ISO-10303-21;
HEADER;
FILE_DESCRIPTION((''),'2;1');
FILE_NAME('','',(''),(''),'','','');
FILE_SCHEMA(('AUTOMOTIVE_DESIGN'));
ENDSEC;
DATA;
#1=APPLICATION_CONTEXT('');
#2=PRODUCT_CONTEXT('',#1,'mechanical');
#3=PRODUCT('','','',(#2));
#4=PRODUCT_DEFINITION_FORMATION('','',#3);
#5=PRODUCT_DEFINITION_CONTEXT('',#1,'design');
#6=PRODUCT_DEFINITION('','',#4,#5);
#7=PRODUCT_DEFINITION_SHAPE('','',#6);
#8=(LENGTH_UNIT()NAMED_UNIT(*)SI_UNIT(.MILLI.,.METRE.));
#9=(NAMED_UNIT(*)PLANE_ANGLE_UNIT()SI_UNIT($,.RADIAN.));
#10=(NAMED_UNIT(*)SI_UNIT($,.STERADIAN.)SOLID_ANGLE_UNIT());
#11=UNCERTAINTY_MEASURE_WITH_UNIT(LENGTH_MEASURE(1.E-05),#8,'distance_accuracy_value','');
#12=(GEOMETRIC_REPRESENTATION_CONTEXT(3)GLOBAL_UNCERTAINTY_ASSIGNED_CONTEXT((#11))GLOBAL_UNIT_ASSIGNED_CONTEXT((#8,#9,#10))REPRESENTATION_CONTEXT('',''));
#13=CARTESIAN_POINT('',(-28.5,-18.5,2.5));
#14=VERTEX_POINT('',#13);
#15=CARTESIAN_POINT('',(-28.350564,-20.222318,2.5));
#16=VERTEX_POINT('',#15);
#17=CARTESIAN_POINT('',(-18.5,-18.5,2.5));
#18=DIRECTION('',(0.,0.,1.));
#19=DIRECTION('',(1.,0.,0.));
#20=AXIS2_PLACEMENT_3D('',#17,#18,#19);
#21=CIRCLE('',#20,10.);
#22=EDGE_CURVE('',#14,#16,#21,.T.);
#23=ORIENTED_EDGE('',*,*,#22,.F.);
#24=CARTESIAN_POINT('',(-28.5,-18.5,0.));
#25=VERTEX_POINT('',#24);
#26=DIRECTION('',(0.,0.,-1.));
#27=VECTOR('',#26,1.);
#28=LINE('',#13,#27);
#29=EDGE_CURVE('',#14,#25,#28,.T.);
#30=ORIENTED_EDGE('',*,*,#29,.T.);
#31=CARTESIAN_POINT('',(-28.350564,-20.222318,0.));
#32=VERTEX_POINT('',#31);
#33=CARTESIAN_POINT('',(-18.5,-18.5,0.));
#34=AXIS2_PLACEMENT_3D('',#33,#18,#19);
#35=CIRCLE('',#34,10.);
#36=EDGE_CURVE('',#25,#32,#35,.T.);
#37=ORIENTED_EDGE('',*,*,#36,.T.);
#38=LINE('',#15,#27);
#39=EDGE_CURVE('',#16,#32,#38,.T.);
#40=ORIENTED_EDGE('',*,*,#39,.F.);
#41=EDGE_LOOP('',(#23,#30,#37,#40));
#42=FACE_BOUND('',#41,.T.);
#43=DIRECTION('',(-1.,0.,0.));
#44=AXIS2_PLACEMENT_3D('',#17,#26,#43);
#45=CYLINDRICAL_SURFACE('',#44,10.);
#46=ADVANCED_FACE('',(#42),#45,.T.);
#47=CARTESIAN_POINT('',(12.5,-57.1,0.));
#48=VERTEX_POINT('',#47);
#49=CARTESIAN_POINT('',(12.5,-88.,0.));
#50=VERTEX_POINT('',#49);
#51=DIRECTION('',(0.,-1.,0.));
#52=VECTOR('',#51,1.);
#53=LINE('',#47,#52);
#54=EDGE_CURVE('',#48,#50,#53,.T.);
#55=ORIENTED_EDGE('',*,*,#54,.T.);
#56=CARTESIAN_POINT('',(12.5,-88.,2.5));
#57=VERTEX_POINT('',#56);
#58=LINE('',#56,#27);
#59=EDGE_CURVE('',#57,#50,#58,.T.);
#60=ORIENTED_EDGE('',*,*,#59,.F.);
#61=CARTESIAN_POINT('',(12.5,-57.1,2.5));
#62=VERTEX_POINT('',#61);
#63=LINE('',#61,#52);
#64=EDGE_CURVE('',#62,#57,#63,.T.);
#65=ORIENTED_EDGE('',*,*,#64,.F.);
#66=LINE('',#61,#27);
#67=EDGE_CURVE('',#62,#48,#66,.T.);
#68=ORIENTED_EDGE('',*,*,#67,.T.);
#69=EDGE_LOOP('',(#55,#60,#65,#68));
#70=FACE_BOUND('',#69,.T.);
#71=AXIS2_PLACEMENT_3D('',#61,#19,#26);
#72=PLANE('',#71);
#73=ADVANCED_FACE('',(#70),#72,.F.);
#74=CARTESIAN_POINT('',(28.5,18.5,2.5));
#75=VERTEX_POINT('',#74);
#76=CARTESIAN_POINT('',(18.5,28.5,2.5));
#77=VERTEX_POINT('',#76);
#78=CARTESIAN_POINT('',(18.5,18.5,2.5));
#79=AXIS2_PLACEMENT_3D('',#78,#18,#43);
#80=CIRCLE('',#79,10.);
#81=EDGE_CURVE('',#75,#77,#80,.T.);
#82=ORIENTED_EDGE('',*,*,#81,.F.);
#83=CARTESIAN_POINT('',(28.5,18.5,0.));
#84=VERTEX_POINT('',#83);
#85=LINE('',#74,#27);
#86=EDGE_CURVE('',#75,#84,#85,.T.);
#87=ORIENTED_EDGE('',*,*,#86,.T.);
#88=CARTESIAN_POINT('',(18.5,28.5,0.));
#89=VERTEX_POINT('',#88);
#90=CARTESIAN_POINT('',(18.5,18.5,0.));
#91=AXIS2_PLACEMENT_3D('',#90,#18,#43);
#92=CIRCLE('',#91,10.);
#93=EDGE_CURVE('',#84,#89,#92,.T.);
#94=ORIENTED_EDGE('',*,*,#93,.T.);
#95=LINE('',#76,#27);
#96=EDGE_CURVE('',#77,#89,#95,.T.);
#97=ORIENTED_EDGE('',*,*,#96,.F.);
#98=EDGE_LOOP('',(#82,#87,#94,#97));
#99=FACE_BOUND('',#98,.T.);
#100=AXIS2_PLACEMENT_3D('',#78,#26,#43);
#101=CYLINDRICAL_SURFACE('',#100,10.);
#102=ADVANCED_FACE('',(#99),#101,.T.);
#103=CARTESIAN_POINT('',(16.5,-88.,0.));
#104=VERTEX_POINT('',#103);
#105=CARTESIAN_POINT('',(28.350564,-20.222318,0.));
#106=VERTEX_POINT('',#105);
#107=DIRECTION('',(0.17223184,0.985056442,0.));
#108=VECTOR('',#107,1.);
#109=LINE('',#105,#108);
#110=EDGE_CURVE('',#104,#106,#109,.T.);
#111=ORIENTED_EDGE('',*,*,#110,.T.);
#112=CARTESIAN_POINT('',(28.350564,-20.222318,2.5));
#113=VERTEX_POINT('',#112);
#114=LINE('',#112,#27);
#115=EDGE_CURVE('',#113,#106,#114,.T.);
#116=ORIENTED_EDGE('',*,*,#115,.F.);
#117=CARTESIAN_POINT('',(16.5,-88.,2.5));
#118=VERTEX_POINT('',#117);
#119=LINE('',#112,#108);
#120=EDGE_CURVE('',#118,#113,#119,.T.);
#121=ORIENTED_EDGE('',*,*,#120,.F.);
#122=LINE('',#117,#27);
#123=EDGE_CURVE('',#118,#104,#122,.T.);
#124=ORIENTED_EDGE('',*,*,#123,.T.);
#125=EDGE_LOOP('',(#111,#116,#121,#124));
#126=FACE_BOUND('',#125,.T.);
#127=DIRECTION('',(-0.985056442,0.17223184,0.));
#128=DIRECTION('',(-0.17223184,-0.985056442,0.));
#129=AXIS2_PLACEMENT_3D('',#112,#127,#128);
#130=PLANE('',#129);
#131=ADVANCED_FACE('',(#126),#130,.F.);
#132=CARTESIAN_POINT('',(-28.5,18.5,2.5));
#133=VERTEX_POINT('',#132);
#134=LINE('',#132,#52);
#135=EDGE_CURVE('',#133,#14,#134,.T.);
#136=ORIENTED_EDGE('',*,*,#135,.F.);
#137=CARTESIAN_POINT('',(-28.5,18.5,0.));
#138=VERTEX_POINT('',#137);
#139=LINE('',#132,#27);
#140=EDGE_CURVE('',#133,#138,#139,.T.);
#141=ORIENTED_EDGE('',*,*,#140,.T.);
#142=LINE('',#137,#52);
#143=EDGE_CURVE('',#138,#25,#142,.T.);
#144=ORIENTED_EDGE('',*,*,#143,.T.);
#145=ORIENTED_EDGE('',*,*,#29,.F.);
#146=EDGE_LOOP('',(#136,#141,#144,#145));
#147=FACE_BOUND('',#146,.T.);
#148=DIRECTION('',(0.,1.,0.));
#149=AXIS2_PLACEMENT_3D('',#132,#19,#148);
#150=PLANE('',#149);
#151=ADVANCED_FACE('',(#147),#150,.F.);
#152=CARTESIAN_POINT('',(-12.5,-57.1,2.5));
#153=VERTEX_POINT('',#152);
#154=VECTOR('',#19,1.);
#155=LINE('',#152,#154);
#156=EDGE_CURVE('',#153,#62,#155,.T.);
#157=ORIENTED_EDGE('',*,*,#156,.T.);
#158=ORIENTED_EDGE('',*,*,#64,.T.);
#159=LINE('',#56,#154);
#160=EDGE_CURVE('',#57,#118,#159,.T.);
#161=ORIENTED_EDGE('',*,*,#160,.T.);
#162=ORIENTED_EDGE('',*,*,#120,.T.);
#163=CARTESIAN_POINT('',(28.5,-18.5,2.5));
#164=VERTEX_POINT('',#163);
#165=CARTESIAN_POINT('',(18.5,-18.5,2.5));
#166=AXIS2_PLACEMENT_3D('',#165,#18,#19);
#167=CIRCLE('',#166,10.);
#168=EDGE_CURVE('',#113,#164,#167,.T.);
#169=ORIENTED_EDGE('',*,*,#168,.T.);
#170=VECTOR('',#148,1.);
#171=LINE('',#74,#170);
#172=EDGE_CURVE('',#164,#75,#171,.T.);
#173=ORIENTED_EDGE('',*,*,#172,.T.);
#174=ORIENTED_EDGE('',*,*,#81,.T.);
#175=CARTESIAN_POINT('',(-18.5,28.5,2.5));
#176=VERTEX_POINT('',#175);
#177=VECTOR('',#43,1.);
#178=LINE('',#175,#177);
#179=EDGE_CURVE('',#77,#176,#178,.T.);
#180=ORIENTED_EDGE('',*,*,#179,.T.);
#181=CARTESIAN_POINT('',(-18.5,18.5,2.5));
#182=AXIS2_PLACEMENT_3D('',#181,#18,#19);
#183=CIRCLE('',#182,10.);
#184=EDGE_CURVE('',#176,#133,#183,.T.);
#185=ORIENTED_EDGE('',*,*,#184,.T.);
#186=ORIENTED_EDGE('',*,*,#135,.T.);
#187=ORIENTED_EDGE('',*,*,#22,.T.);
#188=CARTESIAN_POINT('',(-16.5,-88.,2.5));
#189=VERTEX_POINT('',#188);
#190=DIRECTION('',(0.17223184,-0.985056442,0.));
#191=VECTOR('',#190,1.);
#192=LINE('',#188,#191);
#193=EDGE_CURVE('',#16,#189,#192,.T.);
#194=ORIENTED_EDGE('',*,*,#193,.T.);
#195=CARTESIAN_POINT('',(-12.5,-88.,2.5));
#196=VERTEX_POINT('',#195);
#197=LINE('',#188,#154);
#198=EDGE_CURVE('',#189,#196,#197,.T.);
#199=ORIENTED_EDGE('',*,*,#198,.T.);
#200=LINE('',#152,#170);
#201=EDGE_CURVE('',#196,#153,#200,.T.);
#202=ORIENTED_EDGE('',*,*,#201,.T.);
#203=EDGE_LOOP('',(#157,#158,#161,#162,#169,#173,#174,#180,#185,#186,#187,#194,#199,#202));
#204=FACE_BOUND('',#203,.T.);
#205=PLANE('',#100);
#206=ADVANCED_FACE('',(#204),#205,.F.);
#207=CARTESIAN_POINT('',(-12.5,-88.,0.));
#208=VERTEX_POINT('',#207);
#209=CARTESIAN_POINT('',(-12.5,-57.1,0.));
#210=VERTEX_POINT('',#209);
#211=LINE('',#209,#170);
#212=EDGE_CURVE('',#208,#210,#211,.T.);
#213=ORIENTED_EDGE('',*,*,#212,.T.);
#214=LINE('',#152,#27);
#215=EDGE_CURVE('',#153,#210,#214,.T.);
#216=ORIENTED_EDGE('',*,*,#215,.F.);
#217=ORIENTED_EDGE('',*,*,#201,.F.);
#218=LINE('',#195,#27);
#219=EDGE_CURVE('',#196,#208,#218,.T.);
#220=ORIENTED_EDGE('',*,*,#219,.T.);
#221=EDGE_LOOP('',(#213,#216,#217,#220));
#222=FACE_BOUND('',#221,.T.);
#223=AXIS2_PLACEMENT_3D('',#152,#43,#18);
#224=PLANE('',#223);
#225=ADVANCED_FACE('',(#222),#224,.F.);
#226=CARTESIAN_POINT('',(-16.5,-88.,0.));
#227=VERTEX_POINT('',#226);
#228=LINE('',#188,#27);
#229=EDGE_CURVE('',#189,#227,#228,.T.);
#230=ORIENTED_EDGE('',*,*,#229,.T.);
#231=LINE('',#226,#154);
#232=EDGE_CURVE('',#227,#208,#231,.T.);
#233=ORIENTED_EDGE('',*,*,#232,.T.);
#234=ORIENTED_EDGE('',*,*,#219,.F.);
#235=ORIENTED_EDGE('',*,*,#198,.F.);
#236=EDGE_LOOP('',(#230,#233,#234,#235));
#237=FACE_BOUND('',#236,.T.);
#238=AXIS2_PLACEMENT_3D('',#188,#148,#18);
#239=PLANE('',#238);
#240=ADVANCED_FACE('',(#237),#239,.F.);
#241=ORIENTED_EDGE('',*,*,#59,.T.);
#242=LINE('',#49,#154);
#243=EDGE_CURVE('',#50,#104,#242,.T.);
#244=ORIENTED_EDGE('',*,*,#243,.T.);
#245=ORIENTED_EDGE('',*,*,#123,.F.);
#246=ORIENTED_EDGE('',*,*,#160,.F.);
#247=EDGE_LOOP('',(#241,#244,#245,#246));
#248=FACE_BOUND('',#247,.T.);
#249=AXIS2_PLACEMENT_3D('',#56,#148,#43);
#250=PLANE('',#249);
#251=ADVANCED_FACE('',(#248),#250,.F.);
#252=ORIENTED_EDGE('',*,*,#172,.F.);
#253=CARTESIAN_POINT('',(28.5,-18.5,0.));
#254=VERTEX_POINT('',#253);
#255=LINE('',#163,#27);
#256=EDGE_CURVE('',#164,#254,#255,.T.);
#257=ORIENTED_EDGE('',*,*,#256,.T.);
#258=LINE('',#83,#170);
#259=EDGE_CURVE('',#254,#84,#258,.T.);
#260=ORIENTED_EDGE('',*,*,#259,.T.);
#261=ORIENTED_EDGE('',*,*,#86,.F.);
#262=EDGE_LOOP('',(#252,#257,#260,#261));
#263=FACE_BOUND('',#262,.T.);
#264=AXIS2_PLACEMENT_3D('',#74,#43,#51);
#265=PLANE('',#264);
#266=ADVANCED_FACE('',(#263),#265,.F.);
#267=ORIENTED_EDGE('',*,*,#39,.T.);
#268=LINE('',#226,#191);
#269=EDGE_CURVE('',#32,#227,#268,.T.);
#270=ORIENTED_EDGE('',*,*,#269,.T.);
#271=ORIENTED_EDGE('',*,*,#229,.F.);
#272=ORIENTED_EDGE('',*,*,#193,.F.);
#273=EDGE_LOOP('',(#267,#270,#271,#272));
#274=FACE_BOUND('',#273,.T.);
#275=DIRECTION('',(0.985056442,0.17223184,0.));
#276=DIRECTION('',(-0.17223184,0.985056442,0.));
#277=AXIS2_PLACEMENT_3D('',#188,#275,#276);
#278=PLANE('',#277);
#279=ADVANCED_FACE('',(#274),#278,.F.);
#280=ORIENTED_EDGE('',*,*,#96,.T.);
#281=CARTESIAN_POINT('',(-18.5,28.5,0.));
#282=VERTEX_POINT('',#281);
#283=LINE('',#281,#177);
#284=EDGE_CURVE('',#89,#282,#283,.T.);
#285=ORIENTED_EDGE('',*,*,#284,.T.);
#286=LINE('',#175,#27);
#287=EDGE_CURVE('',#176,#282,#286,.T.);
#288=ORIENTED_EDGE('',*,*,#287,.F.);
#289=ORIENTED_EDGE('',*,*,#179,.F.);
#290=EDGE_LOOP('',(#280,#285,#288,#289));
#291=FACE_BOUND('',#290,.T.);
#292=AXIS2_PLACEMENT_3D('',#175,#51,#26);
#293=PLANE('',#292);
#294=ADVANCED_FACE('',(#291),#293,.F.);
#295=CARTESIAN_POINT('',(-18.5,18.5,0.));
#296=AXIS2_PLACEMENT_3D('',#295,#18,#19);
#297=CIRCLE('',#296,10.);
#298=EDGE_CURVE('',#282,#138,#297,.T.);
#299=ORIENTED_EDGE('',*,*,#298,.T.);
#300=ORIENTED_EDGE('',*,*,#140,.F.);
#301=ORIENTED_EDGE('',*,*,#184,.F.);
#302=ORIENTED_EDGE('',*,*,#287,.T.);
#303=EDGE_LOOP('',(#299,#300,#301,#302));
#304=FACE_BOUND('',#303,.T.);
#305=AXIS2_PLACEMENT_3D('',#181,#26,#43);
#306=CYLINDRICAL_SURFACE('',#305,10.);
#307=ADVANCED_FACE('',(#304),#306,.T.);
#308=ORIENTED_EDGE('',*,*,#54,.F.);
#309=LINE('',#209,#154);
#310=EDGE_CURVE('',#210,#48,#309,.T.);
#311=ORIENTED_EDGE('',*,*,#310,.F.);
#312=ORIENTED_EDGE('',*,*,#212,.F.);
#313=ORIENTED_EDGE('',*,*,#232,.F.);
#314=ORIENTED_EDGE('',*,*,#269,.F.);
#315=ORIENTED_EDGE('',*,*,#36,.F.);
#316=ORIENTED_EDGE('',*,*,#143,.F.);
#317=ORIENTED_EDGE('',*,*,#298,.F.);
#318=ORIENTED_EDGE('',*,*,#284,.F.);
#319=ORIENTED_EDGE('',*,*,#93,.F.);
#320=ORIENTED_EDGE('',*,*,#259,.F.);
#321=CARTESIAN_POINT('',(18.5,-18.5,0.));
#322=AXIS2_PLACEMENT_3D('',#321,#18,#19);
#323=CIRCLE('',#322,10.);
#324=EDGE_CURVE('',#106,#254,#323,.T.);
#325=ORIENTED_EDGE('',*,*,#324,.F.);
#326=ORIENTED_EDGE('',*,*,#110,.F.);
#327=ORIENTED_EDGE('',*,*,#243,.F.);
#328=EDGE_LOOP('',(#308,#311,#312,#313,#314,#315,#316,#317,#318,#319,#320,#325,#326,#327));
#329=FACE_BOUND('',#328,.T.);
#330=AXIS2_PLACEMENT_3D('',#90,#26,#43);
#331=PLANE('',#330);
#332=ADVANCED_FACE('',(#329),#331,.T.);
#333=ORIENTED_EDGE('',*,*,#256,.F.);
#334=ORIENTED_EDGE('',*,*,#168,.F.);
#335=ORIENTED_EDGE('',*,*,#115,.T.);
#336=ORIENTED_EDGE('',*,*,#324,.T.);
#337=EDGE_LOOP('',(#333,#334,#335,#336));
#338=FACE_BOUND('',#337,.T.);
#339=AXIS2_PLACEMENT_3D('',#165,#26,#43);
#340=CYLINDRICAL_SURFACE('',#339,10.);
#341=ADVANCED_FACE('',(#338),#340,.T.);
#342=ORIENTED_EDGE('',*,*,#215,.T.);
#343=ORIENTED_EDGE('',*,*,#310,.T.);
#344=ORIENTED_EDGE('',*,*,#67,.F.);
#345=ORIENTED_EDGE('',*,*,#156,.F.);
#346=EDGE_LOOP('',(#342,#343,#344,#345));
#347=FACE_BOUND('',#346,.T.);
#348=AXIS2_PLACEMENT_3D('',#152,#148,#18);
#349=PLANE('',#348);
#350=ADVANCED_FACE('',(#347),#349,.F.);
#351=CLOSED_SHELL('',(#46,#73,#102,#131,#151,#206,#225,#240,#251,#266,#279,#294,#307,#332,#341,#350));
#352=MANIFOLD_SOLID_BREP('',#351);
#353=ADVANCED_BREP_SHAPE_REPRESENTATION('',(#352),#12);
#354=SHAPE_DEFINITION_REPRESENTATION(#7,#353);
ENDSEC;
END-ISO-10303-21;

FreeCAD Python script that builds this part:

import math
import FreeCAD as App
import Part
import Sketcher

V = App.Vector

doc = App.newDocument("Part")
params = doc.addObject("Spreadsheet::Sheet", "Params")
for row, (alias, value) in enumerate([
    ("sketch1_radius", "10 mm"),
    ("sketch1_width", "4 mm"),
    ("sketch1_width2", "25 mm"),
    ("sketch1_width3", "37 mm"),
    ("sketch1_height", "30.9 mm"),
    ("pad1_length", "2.5 mm"),
], start=1):
    params.set(f"A{row}", alias)
    params.set(f"B{row}", "=" + value)
    params.setAlias(f"B{row}", alias)

body = doc.addObject("PartDesign::Body", "Body")

sketch1 = body.newObject("Sketcher::SketchObject", "Sketch")
sketch1.AttachmentSupport = (doc.getObject("XY_Plane"), [""])
sketch1.MapMode = "FlatFace"
sketch1.addGeometry([
    Part.LineSegment(V(-16.5, -88, 0), V(-12.5, -88, 0)),
    Part.LineSegment(V(-12.5, -88, 0), V(-12.5, -57.1, 0)),
    Part.LineSegment(V(-12.5, -57.1, 0), V(12.5, -57.1, 0)),
    Part.LineSegment(V(12.5, -57.1, 0), V(12.5, -88, 0)),
    Part.LineSegment(V(12.5, -88, 0), V(16.5, -88, 0)),
    Part.LineSegment(V(16.5, -88, 0), V(28.4, -20.2, 0)),
    Part.ArcOfCircle(Part.Circle(V(18.5, -18.5, 0), V(0, 0, 1), 10), math.radians(-9.92), math.radians(0)),
    Part.LineSegment(V(28.5, -18.5, 0), V(28.5, 18.5, 0)),
    Part.ArcOfCircle(Part.Circle(V(18.5, 18.5, 0), V(0, 0, 1), 10), math.radians(0), math.radians(90)),
    Part.LineSegment(V(18.5, 28.5, 0), V(-18.5, 28.5, 0)),
    Part.ArcOfCircle(Part.Circle(V(-18.5, 18.5, 0), V(0, 0, 1), 10), math.radians(90), math.radians(180)),
    Part.LineSegment(V(-28.5, 18.5, 0), V(-28.5, -18.5, 0)),
    Part.ArcOfCircle(Part.Circle(V(-18.5, -18.5, 0), V(0, 0, 1), 10), math.radians(180), math.radians(189.92)),
    Part.LineSegment(V(-28.4, -20.2, 0), V(-16.5, -88, 0)),
], False)
sketch1.addConstraint([
    Sketcher.Constraint("Coincident", 0, 2, 1, 1),
    Sketcher.Constraint("Coincident", 1, 2, 2, 1),
    Sketcher.Constraint("Coincident", 2, 2, 3, 1),
    Sketcher.Constraint("Coincident", 3, 2, 4, 1),
    Sketcher.Constraint("Coincident", 4, 2, 5, 1),
    Sketcher.Constraint("Tangent", 5, 2, 6, 1),
    Sketcher.Constraint("Tangent", 6, 2, 7, 1),
    Sketcher.Constraint("Tangent", 7, 2, 8, 1),
    Sketcher.Constraint("Tangent", 8, 2, 9, 1),
    Sketcher.Constraint("Tangent", 9, 2, 10, 1),
    Sketcher.Constraint("Tangent", 10, 2, 11, 1),
    Sketcher.Constraint("Tangent", 11, 2, 12, 1),
    Sketcher.Constraint("Tangent", 12, 2, 13, 1),
    Sketcher.Constraint("Coincident", 13, 2, 0, 1),
    Sketcher.Constraint("Horizontal", 0),
    Sketcher.Constraint("Vertical", 1),
    Sketcher.Constraint("Horizontal", 2),
    Sketcher.Constraint("Vertical", 3),
    Sketcher.Constraint("Horizontal", 4),
    Sketcher.Constraint("Vertical", 7),
    Sketcher.Constraint("Horizontal", 9),
    Sketcher.Constraint("Vertical", 11),
    Sketcher.Constraint("Equal", 6, 8),
    Sketcher.Constraint("Equal", 8, 10),
    Sketcher.Constraint("Equal", 10, 12),
    Sketcher.Constraint("Symmetric", 6, 3, 10, 3, -1, 1),
    Sketcher.Constraint("Symmetric", 0, 2, 3, 2, -2),
    Sketcher.Constraint("Symmetric", 5, 2, 12, 2, -2),
    Sketcher.Constraint("Equal", 9, 7),
    Sketcher.Constraint("Radius", 6, 10.0),
    Sketcher.Constraint("DistanceX", 0, 1, 0, 2, 4.0),
    Sketcher.Constraint("DistanceX", 2, 1, 2, 2, 25.0),
    Sketcher.Constraint("DistanceX", 9, 2, 9, 1, 37.0),
    Sketcher.Constraint("DistanceY", 1, 1, 1, 2, 30.9),
    Sketcher.Constraint("DistanceY", 0, 2, -1, 1, 88.0),
])
sketch1.setExpression("Constraints[29]", "Params.sketch1_radius")
sketch1.setExpression("Constraints[30]", "Params.sketch1_width")
sketch1.setExpression("Constraints[31]", "Params.sketch1_width2")
sketch1.setExpression("Constraints[32]", "Params.sketch1_width3")
sketch1.setExpression("Constraints[33]", "Params.sketch1_height")
pad1 = body.newObject("PartDesign::Pad", "Pad")
pad1.Profile = sketch1
pad1.setExpression("Length", "Params.pad1_length")

doc.recompute()
